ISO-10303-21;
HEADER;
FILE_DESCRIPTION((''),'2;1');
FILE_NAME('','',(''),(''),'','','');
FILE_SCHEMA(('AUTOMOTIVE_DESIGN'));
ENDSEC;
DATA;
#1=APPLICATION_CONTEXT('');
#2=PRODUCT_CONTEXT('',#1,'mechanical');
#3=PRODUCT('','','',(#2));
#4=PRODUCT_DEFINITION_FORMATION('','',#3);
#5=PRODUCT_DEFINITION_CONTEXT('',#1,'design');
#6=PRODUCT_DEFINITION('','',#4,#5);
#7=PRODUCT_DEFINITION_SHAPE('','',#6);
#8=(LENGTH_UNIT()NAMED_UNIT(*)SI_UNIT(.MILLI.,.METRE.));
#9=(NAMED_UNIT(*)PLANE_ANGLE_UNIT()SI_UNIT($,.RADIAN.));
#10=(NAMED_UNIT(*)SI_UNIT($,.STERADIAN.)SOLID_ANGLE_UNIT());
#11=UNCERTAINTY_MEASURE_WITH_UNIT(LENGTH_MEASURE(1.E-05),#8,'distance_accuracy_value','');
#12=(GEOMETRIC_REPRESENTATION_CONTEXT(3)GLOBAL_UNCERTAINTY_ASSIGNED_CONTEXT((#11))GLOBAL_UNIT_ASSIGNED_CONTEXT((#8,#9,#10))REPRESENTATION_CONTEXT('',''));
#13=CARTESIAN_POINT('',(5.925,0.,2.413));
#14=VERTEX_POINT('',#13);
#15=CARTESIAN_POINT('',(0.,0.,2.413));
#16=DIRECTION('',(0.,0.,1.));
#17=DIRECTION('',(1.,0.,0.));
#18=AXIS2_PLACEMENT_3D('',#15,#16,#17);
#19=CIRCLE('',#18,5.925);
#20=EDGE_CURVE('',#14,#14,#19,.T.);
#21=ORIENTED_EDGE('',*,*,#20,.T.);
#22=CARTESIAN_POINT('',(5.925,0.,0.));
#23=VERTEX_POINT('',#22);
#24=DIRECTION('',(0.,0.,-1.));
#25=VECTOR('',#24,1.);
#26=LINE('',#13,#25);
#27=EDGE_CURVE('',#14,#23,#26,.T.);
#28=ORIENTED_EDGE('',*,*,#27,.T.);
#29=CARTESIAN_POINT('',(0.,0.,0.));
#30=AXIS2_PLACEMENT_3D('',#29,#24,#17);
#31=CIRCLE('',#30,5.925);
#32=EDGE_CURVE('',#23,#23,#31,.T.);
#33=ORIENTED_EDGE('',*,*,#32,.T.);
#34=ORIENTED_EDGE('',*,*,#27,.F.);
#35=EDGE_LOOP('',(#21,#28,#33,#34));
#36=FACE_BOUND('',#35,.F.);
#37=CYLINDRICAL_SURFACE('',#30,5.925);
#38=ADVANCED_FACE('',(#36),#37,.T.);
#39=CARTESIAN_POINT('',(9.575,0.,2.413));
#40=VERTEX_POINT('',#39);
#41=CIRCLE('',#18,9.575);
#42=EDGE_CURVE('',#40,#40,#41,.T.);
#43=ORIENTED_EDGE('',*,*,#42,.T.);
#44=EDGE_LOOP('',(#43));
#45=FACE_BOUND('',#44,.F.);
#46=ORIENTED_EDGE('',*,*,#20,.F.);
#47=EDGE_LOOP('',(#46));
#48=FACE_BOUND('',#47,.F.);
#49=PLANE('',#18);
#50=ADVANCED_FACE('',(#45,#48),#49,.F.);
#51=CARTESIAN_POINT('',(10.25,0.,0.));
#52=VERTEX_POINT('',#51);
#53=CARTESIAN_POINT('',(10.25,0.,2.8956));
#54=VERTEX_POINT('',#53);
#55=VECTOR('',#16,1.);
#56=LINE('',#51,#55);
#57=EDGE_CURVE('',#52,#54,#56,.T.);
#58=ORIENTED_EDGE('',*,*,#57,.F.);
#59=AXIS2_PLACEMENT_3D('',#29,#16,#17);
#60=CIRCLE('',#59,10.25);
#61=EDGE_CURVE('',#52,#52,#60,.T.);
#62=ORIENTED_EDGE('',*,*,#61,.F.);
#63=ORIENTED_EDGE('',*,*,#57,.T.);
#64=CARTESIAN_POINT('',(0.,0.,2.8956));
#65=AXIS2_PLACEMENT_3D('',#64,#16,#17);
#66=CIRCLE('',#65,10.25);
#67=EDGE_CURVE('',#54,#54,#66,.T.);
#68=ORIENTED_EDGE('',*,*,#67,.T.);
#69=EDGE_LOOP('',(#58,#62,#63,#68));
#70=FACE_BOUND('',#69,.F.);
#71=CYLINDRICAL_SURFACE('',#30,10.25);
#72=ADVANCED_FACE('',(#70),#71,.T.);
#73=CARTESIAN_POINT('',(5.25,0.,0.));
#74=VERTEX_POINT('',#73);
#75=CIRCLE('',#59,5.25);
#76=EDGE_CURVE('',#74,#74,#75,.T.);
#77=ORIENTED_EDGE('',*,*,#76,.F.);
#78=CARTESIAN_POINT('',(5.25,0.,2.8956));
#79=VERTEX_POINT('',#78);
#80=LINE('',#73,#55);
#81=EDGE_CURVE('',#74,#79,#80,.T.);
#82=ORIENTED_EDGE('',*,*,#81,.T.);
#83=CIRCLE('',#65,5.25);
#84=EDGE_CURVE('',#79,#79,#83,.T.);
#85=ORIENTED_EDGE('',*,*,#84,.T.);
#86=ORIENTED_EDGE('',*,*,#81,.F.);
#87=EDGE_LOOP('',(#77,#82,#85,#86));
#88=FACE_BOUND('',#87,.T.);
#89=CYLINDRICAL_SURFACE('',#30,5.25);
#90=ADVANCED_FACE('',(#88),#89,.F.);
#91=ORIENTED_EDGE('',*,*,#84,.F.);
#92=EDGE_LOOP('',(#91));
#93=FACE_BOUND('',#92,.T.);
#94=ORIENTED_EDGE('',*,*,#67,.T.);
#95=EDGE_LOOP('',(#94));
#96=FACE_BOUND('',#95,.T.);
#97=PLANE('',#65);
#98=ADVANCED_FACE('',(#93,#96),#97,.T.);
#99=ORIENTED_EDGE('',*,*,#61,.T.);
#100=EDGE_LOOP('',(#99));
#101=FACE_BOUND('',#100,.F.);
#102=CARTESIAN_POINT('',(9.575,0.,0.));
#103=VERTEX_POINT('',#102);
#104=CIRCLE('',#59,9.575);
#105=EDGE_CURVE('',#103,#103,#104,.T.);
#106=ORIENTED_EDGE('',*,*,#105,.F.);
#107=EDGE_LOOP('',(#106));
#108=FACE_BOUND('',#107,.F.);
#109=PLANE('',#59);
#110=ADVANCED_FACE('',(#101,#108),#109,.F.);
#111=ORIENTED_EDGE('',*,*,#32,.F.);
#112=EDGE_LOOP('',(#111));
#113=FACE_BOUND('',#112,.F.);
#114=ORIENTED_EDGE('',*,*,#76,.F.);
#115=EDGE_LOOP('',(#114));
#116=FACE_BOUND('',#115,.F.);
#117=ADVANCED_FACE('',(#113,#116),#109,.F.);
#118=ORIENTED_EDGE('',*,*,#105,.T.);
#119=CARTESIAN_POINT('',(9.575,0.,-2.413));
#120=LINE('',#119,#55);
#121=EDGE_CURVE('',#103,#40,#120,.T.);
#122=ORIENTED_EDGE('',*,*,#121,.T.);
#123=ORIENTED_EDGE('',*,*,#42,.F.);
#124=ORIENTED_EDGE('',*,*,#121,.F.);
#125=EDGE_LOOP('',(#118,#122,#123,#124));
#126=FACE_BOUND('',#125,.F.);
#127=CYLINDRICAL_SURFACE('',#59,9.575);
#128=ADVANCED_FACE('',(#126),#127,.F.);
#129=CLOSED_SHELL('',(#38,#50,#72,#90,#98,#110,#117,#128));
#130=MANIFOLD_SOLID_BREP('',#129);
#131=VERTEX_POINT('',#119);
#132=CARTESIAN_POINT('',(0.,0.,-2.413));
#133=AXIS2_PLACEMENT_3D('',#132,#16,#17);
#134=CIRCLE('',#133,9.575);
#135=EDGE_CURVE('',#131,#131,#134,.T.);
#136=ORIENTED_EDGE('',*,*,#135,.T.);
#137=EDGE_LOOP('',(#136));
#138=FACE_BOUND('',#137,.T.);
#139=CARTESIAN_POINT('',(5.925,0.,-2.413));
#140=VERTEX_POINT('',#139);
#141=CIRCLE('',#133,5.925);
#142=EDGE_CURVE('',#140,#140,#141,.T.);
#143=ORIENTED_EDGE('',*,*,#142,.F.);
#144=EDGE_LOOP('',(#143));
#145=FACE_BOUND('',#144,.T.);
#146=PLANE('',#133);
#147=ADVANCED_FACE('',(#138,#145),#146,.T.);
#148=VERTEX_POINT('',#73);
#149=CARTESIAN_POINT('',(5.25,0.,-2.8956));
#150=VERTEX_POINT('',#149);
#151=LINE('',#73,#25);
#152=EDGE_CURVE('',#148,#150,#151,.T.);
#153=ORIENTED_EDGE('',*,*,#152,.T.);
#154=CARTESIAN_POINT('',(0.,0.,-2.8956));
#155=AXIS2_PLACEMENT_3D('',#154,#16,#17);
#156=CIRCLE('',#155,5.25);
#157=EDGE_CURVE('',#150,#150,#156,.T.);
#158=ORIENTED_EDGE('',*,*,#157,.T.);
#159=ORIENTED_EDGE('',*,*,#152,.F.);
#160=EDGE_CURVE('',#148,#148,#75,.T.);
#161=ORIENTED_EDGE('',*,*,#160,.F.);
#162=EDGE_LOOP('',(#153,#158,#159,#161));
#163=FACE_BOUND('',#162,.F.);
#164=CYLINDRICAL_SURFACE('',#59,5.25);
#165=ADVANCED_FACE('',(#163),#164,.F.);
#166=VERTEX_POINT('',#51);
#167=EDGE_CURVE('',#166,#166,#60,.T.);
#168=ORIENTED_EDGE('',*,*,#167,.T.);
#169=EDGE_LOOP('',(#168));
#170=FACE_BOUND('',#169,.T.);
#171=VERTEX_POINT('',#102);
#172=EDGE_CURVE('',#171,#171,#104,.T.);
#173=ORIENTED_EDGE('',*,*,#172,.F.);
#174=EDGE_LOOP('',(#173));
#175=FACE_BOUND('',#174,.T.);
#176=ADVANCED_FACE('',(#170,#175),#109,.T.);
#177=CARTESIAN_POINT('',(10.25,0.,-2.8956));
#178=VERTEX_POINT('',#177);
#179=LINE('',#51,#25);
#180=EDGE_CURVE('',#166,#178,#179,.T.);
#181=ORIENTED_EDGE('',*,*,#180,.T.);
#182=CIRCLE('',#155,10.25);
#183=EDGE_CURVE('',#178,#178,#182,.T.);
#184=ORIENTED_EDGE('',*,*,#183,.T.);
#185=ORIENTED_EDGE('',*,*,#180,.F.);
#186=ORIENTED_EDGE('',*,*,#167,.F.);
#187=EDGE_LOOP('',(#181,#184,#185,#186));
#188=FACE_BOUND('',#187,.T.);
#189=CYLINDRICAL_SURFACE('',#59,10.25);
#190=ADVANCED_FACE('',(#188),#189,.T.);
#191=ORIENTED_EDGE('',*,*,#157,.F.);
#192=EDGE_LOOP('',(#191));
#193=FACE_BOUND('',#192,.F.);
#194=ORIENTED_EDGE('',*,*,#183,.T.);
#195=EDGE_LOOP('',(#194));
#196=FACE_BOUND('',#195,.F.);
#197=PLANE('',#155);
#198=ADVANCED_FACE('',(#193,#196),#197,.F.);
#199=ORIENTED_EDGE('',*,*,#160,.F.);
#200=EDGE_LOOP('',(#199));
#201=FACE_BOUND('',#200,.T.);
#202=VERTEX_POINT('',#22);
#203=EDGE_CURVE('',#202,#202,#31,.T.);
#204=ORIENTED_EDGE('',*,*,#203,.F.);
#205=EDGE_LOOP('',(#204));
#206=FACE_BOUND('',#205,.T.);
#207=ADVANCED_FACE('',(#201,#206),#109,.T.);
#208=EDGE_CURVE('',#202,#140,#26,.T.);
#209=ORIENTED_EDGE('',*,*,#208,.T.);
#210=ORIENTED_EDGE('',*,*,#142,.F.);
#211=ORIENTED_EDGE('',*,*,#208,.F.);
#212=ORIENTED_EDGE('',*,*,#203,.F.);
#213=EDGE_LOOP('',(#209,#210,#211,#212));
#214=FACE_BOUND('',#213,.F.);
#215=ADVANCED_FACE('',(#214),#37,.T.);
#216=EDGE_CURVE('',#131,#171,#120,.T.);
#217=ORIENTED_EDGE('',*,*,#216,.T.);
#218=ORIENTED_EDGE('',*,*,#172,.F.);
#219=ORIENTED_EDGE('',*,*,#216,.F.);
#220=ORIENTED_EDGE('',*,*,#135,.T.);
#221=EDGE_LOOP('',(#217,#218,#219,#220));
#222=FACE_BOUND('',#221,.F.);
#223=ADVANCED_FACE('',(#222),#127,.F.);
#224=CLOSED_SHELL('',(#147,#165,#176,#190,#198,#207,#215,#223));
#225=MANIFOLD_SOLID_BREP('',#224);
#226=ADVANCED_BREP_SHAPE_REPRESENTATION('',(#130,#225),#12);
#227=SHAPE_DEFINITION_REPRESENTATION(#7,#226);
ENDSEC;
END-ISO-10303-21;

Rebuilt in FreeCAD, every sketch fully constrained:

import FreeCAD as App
import Part
import Sketcher
from FreeCAD import Vector
Q = App.Units.Quantity

doc = App.newDocument("Part")
params = doc.addObject("Spreadsheet::Sheet", "Params")
for row, (alias, value) in enumerate([
    ("sketch1_diameter", "20.5 mm"),
    ("sketch1_diameter2", "10.5 mm"),
    ("pad1_length", "2.8956 mm"),
    ("sketch2_diameter", "20.5 mm"),
    ("sketch2_diameter2", "10.5 mm"),
    ("pad2_length", "2.8956 mm"),
    ("sketch3_diameter", "19.15 mm"),
    ("sketch3_diameter2", "11.85 mm"),
    ("pad3_length", "4.826 mm"),
], start=1):
    params.set(f"A{row}", alias)
    params.set(f"B{row}", "=" + value)
    params.setAlias(f"B{row}", alias)

body = doc.addObject("PartDesign::Body", "Body")

# Sketch on XY plane
sketch1 = body.newObject("Sketcher::SketchObject", "Sketch")
sketch1.AttachmentSupport = (doc.getObject("XY_Plane"), [""])
sketch1.MapMode = "FlatFace"
sketch1.addGeometry([
    Part.Circle(Vector(0, 0, 0), Vector(0, 0, 1), 10),
    Part.Circle(Vector(0, 0, 0), Vector(0, 0, 1), 5),
], False)
sketch1.addConstraint([
    Sketcher.Constraint("Coincident", 0, 3, -1, 1),
    Sketcher.Constraint("Coincident", 1, 3, -1, 1),
    Sketcher.Constraint("Diameter", 0, Q("20.5 mm")),
    Sketcher.Constraint("Diameter", 1, Q("10.5 mm")),
])
sketch1.setExpression("Constraints[2]", "Params.sketch1_diameter")
sketch1.setExpression("Constraints[3]", "Params.sketch1_diameter2")
pad1 = body.newObject("PartDesign::Pad", "Pad")
pad1.Profile = sketch1
pad1.setExpression("Length", "Params.pad1_length")
body2 = doc.addObject("PartDesign::Body", "Body001")

# Sketch on XY plane
sketch2 = body2.newObject("Sketcher::SketchObject", "Sketch001")
sketch2.AttachmentSupport = (doc.getObject("XY_Plane001"), [""])
sketch2.MapMode = "FlatFace"
sketch2.addGeometry([
    Part.Circle(Vector(0, 0, 0), Vector(0, 0, 1), 10),
    Part.Circle(Vector(0, 0, 0), Vector(0, 0, 1), 5),
], False)
sketch2.addConstraint([
    Sketcher.Constraint("Coincident", 0, 3, -1, 1),
    Sketcher.Constraint("Coincident", 1, 3, -1, 1),
    Sketcher.Constraint("Diameter", 0, Q("20.5 mm")),
    Sketcher.Constraint("Diameter", 1, Q("10.5 mm")),
])
sketch2.setExpression("Constraints[2]", "Params.sketch2_diameter")
sketch2.setExpression("Constraints[3]", "Params.sketch2_diameter2")
pad2 = body2.newObject("PartDesign::Pad", "Pad001")
pad2.Profile = sketch2
pad2.setExpression("Length", "Params.pad2_length")
pad2.Reversed = True
body3 = doc.addObject("PartDesign::Body", "Body002")

# Sketch on XY plane
sketch3 = body3.newObject("Sketcher::SketchObject", "Sketch002")
sketch3.AttachmentSupport = (doc.getObject("XY_Plane002"), [""])
sketch3.MapMode = "FlatFace"
sketch3.addGeometry([
    Part.Circle(Vector(0, 0, 0), Vector(0, 0, 1), 10),
    Part.Circle(Vector(0, 0, 0), Vector(0, 0, 1), 6),
], False)
sketch3.addConstraint([
    Sketcher.Constraint("Coincident", 0, 3, -1, 1),
    Sketcher.Constraint("Coincident", 1, 3, -1, 1),
    Sketcher.Constraint("Diameter", 0, Q("19.15 mm")),
    Sketcher.Constraint("Diameter", 1, Q("11.85 mm")),
])
sketch3.setExpression("Constraints[2]", "Params.sketch3_diameter")
sketch3.setExpression("Constraints[3]", "Params.sketch3_diameter2")
pad3 = body3.newObject("PartDesign::Pad", "Pad002")
pad3.Profile = sketch3
pad3.setExpression("Length", "Params.pad3_length")
pad3.Midplane = True
doc.recompute()

body4 = doc.addObject("PartDesign::Body", "Body003")
body4.BaseFeature = body3
boolean = body.newObject("PartDesign::Boolean", "Boolean")
boolean.Type = "Cut"
boolean.addObjects([body4])
doc.recompute()

boolean2 = body2.newObject("PartDesign::Boolean", "Boolean001")
boolean2.Type = "Cut"
boolean2.addObjects([body3])

doc.recompute()
